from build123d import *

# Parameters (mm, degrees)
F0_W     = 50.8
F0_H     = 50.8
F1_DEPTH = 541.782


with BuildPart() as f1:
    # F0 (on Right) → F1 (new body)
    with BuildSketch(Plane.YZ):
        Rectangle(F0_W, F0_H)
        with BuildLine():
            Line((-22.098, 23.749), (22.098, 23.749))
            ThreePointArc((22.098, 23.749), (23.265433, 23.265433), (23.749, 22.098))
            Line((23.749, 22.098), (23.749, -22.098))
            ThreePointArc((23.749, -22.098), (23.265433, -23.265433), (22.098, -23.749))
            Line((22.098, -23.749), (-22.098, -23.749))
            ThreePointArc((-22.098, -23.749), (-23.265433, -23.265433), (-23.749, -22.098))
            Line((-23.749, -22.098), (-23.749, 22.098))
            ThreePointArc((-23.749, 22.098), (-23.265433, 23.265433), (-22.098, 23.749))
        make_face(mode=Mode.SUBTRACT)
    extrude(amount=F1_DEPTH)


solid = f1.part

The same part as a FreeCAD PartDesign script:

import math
import FreeCAD as App
import Part
import Sketcher
Q = App.Units.Quantity


def add_polygon(sketch, points):
    """Adds a closed chain of lines whose ends are joined by coincident constraints."""
    first, n = sketch.GeometryCount, len(points)
    for a, b in zip(points, points[1:] + points[:1]):
        sketch.addGeometry(Part.LineSegment(App.Vector(*a, 0), App.Vector(*b, 0)), False)
    for i in range(n):
        sketch.addConstraint(Sketcher.Constraint("Coincident", first + i, 2, first + (i + 1) % n, 1))

doc = App.newDocument("Part")
params = doc.addObject("Spreadsheet::Sheet", "Params")
for row, (alias, value) in enumerate([
    ("sketch1_width", "2 in"),
    ("sketch1_radius", "0.065 in"),
    ("sketch1_width2", "1.74 in"),
    ("pad1_length", "21.33 in"),
], start=1):
    params.set(f"A{row}", alias)
    params.set(f"B{row}", "=" + value)
    params.setAlias(f"B{row}", alias)

body = doc.addObject("PartDesign::Body", "Body")

sketch1 = doc.addObject("Sketcher::SketchObject", "Sketch")
body.addObject(sketch1)
sketch1.AttachmentSupport = (doc.YZ_Plane, [""])
sketch1.MapMode = "FlatFace"
add_polygon(sketch1, [(-25.4, 25.4), (-25.4, -25.4), (25.4, -25.4), (25.4, 25.4)])
sketch1.addGeometry(Part.ArcOfCircle(Part.Circle(App.Vector(-22.097999, 22.097999, 0), App.Vector(0, 0, 1), 1.651001), math.radians(90.000035), math.radians(179.999965)), False)
sketch1.addGeometry(Part.LineSegment(App.Vector(-22.098, 23.749, 0), App.Vector(22.098, 23.749, 0)), False)
sketch1.addGeometry(Part.ArcOfCircle(Part.Circle(App.Vector(22.097999, 22.097999, 0), App.Vector(0, 0, 1), 1.651001), math.radians(0.000035), math.radians(89.999965)), False)
sketch1.addGeometry(Part.LineSegment(App.Vector(23.749, 22.098, 0), App.Vector(23.749, -22.098, 0)), False)
sketch1.addGeometry(Part.ArcOfCircle(Part.Circle(App.Vector(22.097999, -22.097999, 0), App.Vector(0, 0, 1), 1.651001), math.radians(-89.999965), math.radians(-0.000035)), False)
sketch1.addGeometry(Part.LineSegment(App.Vector(22.098, -23.749, 0), App.Vector(-22.098, -23.749, 0)), False)
sketch1.addGeometry(Part.ArcOfCircle(Part.Circle(App.Vector(-22.097999, -22.097999, 0), App.Vector(0, 0, 1), 1.651001), math.radians(-179.999965), math.radians(-90.000035)), False)
sketch1.addGeometry(Part.LineSegment(App.Vector(-23.749, -22.098, 0), App.Vector(-23.749, 22.098, 0)), False)
sketch1.addConstraint([
    Sketcher.Constraint("Tangent", 4, 1, 5, 1),
    Sketcher.Constraint("Tangent", 5, 2, 6, 2),
    Sketcher.Constraint("Tangent", 6, 1, 7, 1),
    Sketcher.Constraint("Tangent", 7, 2, 8, 2),
    Sketcher.Constraint("Tangent", 8, 1, 9, 1),
    Sketcher.Constraint("Tangent", 9, 2, 10, 2),
    Sketcher.Constraint("Tangent", 10, 1, 11, 1),
    Sketcher.Constraint("Tangent", 11, 2, 4, 2),
    Sketcher.Constraint("Vertical", 0),
    Sketcher.Constraint("Horizontal", 1),
    Sketcher.Constraint("Vertical", 2),
    Sketcher.Constraint("Horizontal", 3),
    Sketcher.Constraint("Horizontal", 5),
    Sketcher.Constraint("Vertical", 7),
    Sketcher.Constraint("Horizontal", 9),
    Sketcher.Constraint("Vertical", 11),
    Sketcher.Constraint("Equal", 4, 6),
    Sketcher.Constraint("Equal", 6, 8),
    Sketcher.Constraint("Equal", 8, 10),
    Sketcher.Constraint("Symmetric", 4, 3, 8, 3, -1, 1),
    Sketcher.Constraint("Symmetric", 0, 2, 2, 2, -1, 1),
    Sketcher.Constraint("Equal", 3, 0),
    Sketcher.Constraint("Equal", 9, 7),
    Sketcher.Constraint("DistanceX", 1, 1, 1, 2, Q("2 in")),
    Sketcher.Constraint("Radius", 4, Q("0.065 in")),
    Sketcher.Constraint("DistanceX", 5, 1, 5, 2, Q("1.74 in")),
])
sketch1.setExpression("Constraints[27]", "Params.sketch1_width")
sketch1.setExpression("Constraints[28]", "Params.sketch1_radius")
sketch1.setExpression("Constraints[29]", "Params.sketch1_width2")
pad1 = doc.addObject("PartDesign::Pad", "Pad")
body.addObject(pad1)
pad1.Profile = sketch1
pad1.setExpression("Length", "Params.pad1_length")

doc.recompute()
